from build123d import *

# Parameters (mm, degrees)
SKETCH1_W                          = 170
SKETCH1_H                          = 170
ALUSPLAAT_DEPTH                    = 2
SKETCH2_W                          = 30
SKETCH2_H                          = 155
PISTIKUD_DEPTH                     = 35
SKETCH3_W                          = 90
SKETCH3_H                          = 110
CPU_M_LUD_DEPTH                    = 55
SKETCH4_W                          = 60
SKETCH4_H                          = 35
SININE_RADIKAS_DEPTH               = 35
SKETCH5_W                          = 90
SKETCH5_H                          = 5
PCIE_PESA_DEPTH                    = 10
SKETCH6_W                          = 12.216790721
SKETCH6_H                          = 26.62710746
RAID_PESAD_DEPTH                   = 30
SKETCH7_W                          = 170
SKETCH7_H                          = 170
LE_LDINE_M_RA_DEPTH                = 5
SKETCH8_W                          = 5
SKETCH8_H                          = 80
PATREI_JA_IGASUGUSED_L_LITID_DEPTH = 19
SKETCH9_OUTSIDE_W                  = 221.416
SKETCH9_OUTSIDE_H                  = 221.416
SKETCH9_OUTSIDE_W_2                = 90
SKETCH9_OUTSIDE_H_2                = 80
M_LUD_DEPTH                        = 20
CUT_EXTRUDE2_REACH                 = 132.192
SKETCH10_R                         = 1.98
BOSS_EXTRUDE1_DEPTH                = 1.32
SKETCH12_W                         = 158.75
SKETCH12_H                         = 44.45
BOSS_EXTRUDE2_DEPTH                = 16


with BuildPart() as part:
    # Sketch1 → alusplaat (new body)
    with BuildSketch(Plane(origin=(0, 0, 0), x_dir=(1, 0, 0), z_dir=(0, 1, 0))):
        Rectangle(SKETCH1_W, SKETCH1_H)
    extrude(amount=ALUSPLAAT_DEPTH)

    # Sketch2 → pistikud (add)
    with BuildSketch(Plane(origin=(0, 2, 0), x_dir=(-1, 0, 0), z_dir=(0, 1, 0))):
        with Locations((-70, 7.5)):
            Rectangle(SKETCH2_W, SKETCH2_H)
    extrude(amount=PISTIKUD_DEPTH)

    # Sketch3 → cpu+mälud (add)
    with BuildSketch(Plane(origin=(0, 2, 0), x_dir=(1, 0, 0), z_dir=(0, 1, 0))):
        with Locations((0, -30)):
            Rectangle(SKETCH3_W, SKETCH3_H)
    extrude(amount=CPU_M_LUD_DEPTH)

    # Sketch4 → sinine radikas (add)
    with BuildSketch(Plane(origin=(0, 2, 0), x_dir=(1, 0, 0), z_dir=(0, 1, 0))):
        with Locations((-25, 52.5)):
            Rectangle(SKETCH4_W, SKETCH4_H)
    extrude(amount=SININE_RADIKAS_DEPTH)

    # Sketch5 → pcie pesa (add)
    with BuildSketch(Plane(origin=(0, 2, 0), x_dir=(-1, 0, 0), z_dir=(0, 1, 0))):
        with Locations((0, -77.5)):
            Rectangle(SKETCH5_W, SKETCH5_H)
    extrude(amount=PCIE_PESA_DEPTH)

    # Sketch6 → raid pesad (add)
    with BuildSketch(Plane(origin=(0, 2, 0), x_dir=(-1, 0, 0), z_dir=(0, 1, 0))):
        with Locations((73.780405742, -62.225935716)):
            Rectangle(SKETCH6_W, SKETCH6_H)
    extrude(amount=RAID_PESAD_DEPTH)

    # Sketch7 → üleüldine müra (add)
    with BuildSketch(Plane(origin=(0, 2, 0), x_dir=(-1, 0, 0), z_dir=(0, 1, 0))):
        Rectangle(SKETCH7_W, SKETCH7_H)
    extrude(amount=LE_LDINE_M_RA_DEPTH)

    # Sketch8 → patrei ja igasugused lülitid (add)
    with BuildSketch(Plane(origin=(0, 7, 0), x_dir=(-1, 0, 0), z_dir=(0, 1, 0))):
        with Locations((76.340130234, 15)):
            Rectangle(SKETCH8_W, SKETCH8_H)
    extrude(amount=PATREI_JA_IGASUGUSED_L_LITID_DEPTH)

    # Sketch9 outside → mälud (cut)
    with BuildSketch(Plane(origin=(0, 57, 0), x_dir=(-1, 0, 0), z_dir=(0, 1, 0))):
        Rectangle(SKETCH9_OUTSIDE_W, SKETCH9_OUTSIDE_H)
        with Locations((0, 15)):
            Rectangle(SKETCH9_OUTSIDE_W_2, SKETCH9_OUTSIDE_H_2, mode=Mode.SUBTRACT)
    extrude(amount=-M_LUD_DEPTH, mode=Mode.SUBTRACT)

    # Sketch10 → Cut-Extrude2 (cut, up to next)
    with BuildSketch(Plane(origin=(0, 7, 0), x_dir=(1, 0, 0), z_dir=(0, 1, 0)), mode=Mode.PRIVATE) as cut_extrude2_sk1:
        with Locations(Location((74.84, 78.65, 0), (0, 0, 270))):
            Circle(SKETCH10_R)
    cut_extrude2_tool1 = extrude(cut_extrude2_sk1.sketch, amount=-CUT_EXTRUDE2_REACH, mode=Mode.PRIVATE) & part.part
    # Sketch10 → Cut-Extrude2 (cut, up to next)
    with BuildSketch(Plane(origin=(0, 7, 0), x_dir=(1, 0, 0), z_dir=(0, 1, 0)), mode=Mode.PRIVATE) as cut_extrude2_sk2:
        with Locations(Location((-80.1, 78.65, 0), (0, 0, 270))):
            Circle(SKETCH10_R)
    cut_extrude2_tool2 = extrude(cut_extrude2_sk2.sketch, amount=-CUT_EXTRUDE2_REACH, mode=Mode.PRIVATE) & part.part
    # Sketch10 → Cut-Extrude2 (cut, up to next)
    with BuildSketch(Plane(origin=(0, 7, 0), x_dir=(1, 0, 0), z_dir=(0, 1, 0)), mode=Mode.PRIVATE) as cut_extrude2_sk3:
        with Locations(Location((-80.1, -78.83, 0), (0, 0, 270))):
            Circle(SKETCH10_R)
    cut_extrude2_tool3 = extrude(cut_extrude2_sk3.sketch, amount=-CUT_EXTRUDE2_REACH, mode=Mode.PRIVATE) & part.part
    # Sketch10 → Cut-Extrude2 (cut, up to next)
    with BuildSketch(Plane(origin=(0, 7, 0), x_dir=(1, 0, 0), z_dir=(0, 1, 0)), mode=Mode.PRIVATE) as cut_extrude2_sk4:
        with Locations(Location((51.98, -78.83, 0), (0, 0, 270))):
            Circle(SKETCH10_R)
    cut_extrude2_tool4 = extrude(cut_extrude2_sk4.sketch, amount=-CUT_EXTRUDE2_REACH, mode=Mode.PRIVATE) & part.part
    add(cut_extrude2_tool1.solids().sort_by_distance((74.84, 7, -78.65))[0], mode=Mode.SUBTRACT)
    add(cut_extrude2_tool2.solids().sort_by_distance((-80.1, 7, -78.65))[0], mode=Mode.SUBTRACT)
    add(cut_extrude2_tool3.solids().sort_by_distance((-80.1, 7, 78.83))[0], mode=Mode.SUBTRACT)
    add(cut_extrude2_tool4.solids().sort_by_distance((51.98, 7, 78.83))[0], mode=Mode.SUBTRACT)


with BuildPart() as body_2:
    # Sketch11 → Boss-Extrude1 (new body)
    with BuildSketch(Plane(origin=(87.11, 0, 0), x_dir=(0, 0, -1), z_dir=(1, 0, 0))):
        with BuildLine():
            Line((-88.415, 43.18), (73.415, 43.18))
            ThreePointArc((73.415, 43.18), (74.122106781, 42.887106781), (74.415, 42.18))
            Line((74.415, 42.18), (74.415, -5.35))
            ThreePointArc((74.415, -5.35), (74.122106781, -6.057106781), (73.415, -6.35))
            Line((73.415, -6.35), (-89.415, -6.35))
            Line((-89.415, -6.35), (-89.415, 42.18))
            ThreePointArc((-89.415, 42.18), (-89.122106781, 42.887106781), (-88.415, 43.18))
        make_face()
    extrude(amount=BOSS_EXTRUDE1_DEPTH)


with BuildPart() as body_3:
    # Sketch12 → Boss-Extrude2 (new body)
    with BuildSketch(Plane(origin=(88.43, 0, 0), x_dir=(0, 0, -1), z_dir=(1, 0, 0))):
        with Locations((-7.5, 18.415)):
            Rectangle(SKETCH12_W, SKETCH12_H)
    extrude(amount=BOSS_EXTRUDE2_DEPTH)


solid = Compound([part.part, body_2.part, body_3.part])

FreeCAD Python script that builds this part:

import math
import FreeCAD as App
import Part
import Sketcher


def add_polygon(sketch, points):
    """Adds a closed chain of lines whose ends are joined by coincident constraints."""
    first, n = sketch.GeometryCount, len(points)
    for a, b in zip(points, points[1:] + points[:1]):
        sketch.addGeometry(Part.LineSegment(App.Vector(*a, 0), App.Vector(*b, 0)), False)
    for i in range(n):
        sketch.addConstraint(Sketcher.Constraint("Coincident", first + i, 2, first + (i + 1) % n, 1))

doc = App.newDocument("Part")
body = doc.addObject("PartDesign::Body", "Body")

# Sketch on XZ plane
sketch1 = body.newObject("Sketcher::SketchObject", "Sketch")
sketch1.AttachmentSupport = (doc.getObject("XZ_Plane"), [""])
sketch1.MapMode = "FlatFace"
add_polygon(sketch1, [(-85, -85), (-85, 85), (85, 85), (85, -85)])  # lines 0-3
sketch1.addConstraint([
    Sketcher.Constraint("Vertical", 0),
    Sketcher.Constraint("Horizontal", 1),
    Sketcher.Constraint("Vertical", 2),
    Sketcher.Constraint("Horizontal", 3),
    Sketcher.Constraint("Symmetric", 0, 2, 2, 2, -1, 1),
    Sketcher.Constraint("Equal", 3, 0),
    Sketcher.Constraint("DistanceX", 1, 1, 1, 2, 170.0),
])
pad1 = body.newObject("PartDesign::Pad", "Pad")
pad1.Profile = sketch1
pad1.Length = 2
pad1.Reversed = True

# Sketch on XZ plane
sketch2 = body.newObject("Sketcher::SketchObject", "Sketch001")
sketch2.AttachmentSupport = (doc.getObject("XZ_Plane"), [""])
sketch2.MapMode = "FlatFace"
sketch2.AttachmentOffset = App.Placement(App.Vector(0, 0, -2), App.Rotation())
add_polygon(sketch2, [(85, 85), (85, -70), (55, -70), (55, 85)])  # lines 0-3
sketch2.addConstraint([
    Sketcher.Constraint("Vertical", 0),
    Sketcher.Constraint("Horizontal", 1),
    Sketcher.Constraint("Vertical", 2),
    Sketcher.Constraint("Horizontal", 3),
    Sketcher.Constraint("DistanceX", 1, 2, 1, 1, 30.0),
    Sketcher.Constraint("DistanceY", 0, 2, 0, 1, 155.0),
    Sketcher.Constraint("DistanceX", -1, 1, 0, 2, 85.0),
    Sketcher.Constraint("DistanceY", 0, 2, -1, 1, 70.0),
])
pad2 = body.newObject("PartDesign::Pad", "Pad001")
pad2.Profile = sketch2
pad2.Length = 35
pad2.Reversed = True

# Sketch on XZ plane
sketch3 = body.newObject("Sketcher::SketchObject", "Sketch002")
sketch3.AttachmentSupport = (doc.getObject("XZ_Plane"), [""])
sketch3.MapMode = "FlatFace"
sketch3.AttachmentOffset = App.Placement(App.Vector(0, 0, -2), App.Rotation())
add_polygon(sketch3, [(-45, -25), (-45, 85), (45, 85), (45, -25)])  # lines 0-3
sketch3.addConstraint([
    Sketcher.Constraint("Vertical", 0),
    Sketcher.Constraint("Horizontal", 1),
    Sketcher.Constraint("Vertical", 2),
    Sketcher.Constraint("Horizontal", 3),
    Sketcher.Constraint("DistanceX", 1, 1, 1, 2, 90.0),
    Sketcher.Constraint("DistanceY", 0, 1, 0, 2, 110.0),
    Sketcher.Constraint("DistanceX", 0, 2, -1, 1, 45.0),
    Sketcher.Constraint("DistanceY", -1, 1, 0, 2, 85.0),
])
pad3 = body.newObject("PartDesign::Pad", "Pad002")
pad3.Profile = sketch3
pad3.Length = 55
pad3.Reversed = True

# Sketch on XZ plane
sketch4 = body.newObject("Sketcher::SketchObject", "Sketch003")
sketch4.AttachmentSupport = (doc.getObject("XZ_Plane"), [""])
sketch4.MapMode = "FlatFace"
sketch4.AttachmentOffset = App.Placement(App.Vector(0, 0, -2), App.Rotation())
add_polygon(sketch4, [(-55, -70), (-55, -35), (5, -35), (5, -70)])  # lines 0-3
sketch4.addConstraint([
    Sketcher.Constraint("Vertical", 0),
    Sketcher.Constraint("Horizontal", 1),
    Sketcher.Constraint("Vertical", 2),
    Sketcher.Constraint("Horizontal", 3),
    Sketcher.Constraint("DistanceX", 1, 1, 1, 2, 60.0),
    Sketcher.Constraint("DistanceY", 0, 1, 0, 2, 35.0),
    Sketcher.Constraint("DistanceX", 0, 2, -1, 1, 55.0),
    Sketcher.Constraint("DistanceY", 0, 2, -1, 1, 35.0),
])
pad4 = body.newObject("PartDesign::Pad", "Pad003")
pad4.Profile = sketch4
pad4.Length = 35
pad4.Reversed = True

# Sketch on XZ plane
sketch5 = body.newObject("Sketcher::SketchObject", "Sketch004")
sketch5.AttachmentSupport = (doc.getObject("XZ_Plane"), [""])
sketch5.MapMode = "FlatFace"
sketch5.AttachmentOffset = App.Placement(App.Vector(0, 0, -2), App.Rotation())
add_polygon(sketch5, [(45, -75), (45, -80), (-45, -80), (-45, -75)])  # lines 0-3
sketch5.addConstraint([
    Sketcher.Constraint("Vertical", 0),
    Sketcher.Constraint("Horizontal", 1),
    Sketcher.Constraint("Vertical", 2),
    Sketcher.Constraint("Horizontal", 3),
    Sketcher.Constraint("DistanceX", 1, 2, 1, 1, 90.0),
    Sketcher.Constraint("DistanceY", 0, 2, 0, 1, 5.0),
    Sketcher.Constraint("DistanceX", -1, 1, 0, 2, 45.0),
    Sketcher.Constraint("DistanceY", 0, 2, -1, 1, 80.0),
])
pad5 = body.newObject("PartDesign::Pad", "Pad004")
pad5.Profile = sketch5
pad5.Length = 10
pad5.Reversed = True

# Sketch on XZ plane
sketch6 = body.newObject("Sketcher::SketchObject", "Sketch005")
sketch6.AttachmentSupport = (doc.getObject("XZ_Plane"), [""])
sketch6.MapMode = "FlatFace"
sketch6.AttachmentOffset = App.Placement(App.Vector(0, 0, -2), App.Rotation())
add_polygon(sketch6, [(-67.67201, -48.912382), (-67.67201, -75.539489), (-79.888801, -75.539489), (-79.888801, -48.912382)])  # lines 0-3
sketch6.addConstraint([
    Sketcher.Constraint("Vertical", 0),
    Sketcher.Constraint("Horizontal", 1),
    Sketcher.Constraint("Vertical", 2),
    Sketcher.Constraint("Horizontal", 3),
    Sketcher.Constraint("DistanceX", 1, 2, 1, 1, 12.216791),
    Sketcher.Constraint("DistanceX", 1, 2, -1, 1, 79.888801),
    Sketcher.Constraint("DistanceY", 0, 2, 0, 1, 26.627107),
    Sketcher.Constraint("DistanceY", 0, 2, -1, 1, 75.539489),
])
pad6 = body.newObject("PartDesign::Pad", "Pad005")
pad6.Profile = sketch6
pad6.Length = 30
pad6.Reversed = True

# Sketch on XZ plane
sketch7 = body.newObject("Sketcher::SketchObject", "Sketch006")
sketch7.AttachmentSupport = (doc.getObject("XZ_Plane"), [""])
sketch7.MapMode = "FlatFace"
sketch7.AttachmentOffset = App.Placement(App.Vector(0, 0, -2), App.Rotation())
add_polygon(sketch7, [(85, 85), (85, -85), (-85, -85), (-85, 85)])  # lines 0-3
sketch7.addConstraint([
    Sketcher.Constraint("Vertical", 0),
    Sketcher.Constraint("Horizontal", 1),
    Sketcher.Constraint("Vertical", 2),
    Sketcher.Constraint("Horizontal", 3),
    Sketcher.Constraint("Symmetric", 0, 2, 2, 2, -1, 1),
    Sketcher.Constraint("Equal", 3, 0),
    Sketcher.Constraint("DistanceX", 1, 2, 1, 1, 170.0),
])
pad7 = body.newObject("PartDesign::Pad", "Pad006")
pad7.Profile = sketch7
pad7.Length = 5
pad7.Reversed = True

# Sketch on XZ plane
sketch8 = body.newObject("Sketcher::SketchObject", "Sketch007")
sketch8.AttachmentSupport = (doc.getObject("XZ_Plane"), [""])
sketch8.MapMode = "FlatFace"
sketch8.AttachmentOffset = App.Placement(App.Vector(0, 0, -7), App.Rotation())
add_polygon(sketch8, [(-73.84013, 55), (-73.84013, -25), (-78.84013, -25), (-78.84013, 55)])  # lines 0-3
sketch8.addConstraint([
    Sketcher.Constraint("Vertical", 0),
    Sketcher.Constraint("Horizontal", 1),
    Sketcher.Constraint("Vertical", 2),
    Sketcher.Constraint("Horizontal", 3),
    Sketcher.Constraint("DistanceX", 1, 2, 1, 1, 5.0),
    Sketcher.Constraint("DistanceY", 0, 2, 0, 1, 80.0),
    Sketcher.Constraint("DistanceY", 0, 2, -1, 1, 25.0),
    Sketcher.Constraint("DistanceX", 0, 2, -1, 1, 73.84013),
])
pad8 = body.newObject("PartDesign::Pad", "Pad007")
pad8.Profile = sketch8
pad8.Length = 19
pad8.Reversed = True

# Sketch on XZ plane
sketch9 = body.newObject("Sketcher::SketchObject", "Sketch008")
sketch9.AttachmentSupport = (doc.getObject("XZ_Plane"), [""])
sketch9.MapMode = "FlatFace"
sketch9.AttachmentOffset = App.Placement(App.Vector(0, 0, -57), App.Rotation())
add_polygon(sketch9, [(110.708, 110.708), (110.708, -110.708), (-110.708, -110.708), (-110.708, 110.708)])  # lines 0-3
add_polygon(sketch9, [(-45, -25), (45, -25), (45, 55), (-45, 55)])  # lines 4-7
sketch9.addConstraint([
    Sketcher.Constraint("Vertical", 0),
    Sketcher.Constraint("Horizontal", 1),
    Sketcher.Constraint("Vertical", 2),
    Sketcher.Constraint("Horizontal", 3),
    Sketcher.Constraint("Horizontal", 4),
    Sketcher.Constraint("Vertical", 5),
    Sketcher.Constraint("Horizontal", 6),
    Sketcher.Constraint("Vertical", 7),
    Sketcher.Constraint("Symmetric", 0, 2, 2, 2, -1, 1),
    Sketcher.Constraint("Equal", 3, 0),
    Sketcher.Constraint("DistanceX", 4, 1, 4, 2, 90.0),
    Sketcher.Constraint("DistanceY", 5, 1, 5, 2, 80.0),
    Sketcher.Constraint("DistanceX", -1, 1, 4, 2, 45.0),
    Sketcher.Constraint("DistanceY", 4, 2, -1, 1, 25.0),
    Sketcher.Constraint("DistanceX", 1, 2, 1, 1, 221.416),
])
pocket1 = body.newObject("PartDesign::Pocket", "Pocket")
pocket1.Profile = sketch9
pocket1.Length = 20
pocket1.Reversed = True

# Sketch on XZ plane
sketch10 = body.newObject("Sketcher::SketchObject", "Sketch009")
sketch10.AttachmentSupport = (doc.getObject("XZ_Plane"), [""])
sketch10.MapMode = "FlatFace"
sketch10.AttachmentOffset = App.Placement(App.Vector(0, 0, -7), App.Rotation())
sketch10.addGeometry(Part.Circle(App.Vector(74.84, -78.65, 0), App.Vector(0, 0, 1), 1.98), False)
sketch10.addConstraint([
    Sketcher.Constraint("Diameter", 0, 3.96),
    Sketcher.Constraint("DistanceX", -1, 1, 0, 3, 74.84),
    Sketcher.Constraint("DistanceY", 0, 3, -1, 1, 78.65),
])
pocket2 = body.newObject("PartDesign::Pocket", "Pocket001")
pocket2.Profile = sketch10
pocket2.Type = "UpToFirst"
pocket2.Reversed = True

# Sketch on XZ plane
sketch11 = body.newObject("Sketcher::SketchObject", "Sketch010")
sketch11.AttachmentSupport = (doc.getObject("XZ_Plane"), [""])
sketch11.MapMode = "FlatFace"
sketch11.AttachmentOffset = App.Placement(App.Vector(0, 0, -7), App.Rotation())
sketch11.addGeometry(Part.Circle(App.Vector(-80.1, -78.65, 0), App.Vector(0, 0, 1), 1.98), False)
sketch11.addConstraint([
    Sketcher.Constraint("Diameter", 0, 3.96),
    Sketcher.Constraint("DistanceX", 0, 3, -1, 1, 80.1),
    Sketcher.Constraint("DistanceY", 0, 3, -1, 1, 78.65),
])
pocket3 = body.newObject("PartDesign::Pocket", "Pocket002")
pocket3.Profile = sketch11
pocket3.Type = "UpToFirst"
pocket3.Reversed = True

# Sketch on XZ plane
sketch12 = body.newObject("Sketcher::SketchObject", "Sketch011")
sketch12.AttachmentSupport = (doc.getObject("XZ_Plane"), [""])
sketch12.MapMode = "FlatFace"
sketch12.AttachmentOffset = App.Placement(App.Vector(0, 0, -7), App.Rotation())
sketch12.addGeometry(Part.Circle(App.Vector(-80.1, 78.83, 0), App.Vector(0, 0, 1), 1.98), False)
sketch12.addConstraint([
    Sketcher.Constraint("Diameter", 0, 3.96),
    Sketcher.Constraint("DistanceX", 0, 3, -1, 1, 80.1),
    Sketcher.Constraint("DistanceY", -1, 1, 0, 3, 78.83),
])
pocket4 = body.newObject("PartDesign::Pocket", "Pocket003")
pocket4.Profile = sketch12
pocket4.Type = "UpToFirst"
pocket4.Reversed = True

# Sketch on XZ plane
sketch13 = body.newObject("Sketcher::SketchObject", "Sketch012")
sketch13.AttachmentSupport = (doc.getObject("XZ_Plane"), [""])
sketch13.MapMode = "FlatFace"
sketch13.AttachmentOffset = App.Placement(App.Vector(0, 0, -7), App.Rotation())
sketch13.addGeometry(Part.Circle(App.Vector(51.98, 78.83, 0), App.Vector(0, 0, 1), 1.98), False)
sketch13.addConstraint([
    Sketcher.Constraint("Diameter", 0, 3.96),
    Sketcher.Constraint("DistanceX", -1, 1, 0, 3, 51.98),
    Sketcher.Constraint("DistanceY", -1, 1, 0, 3, 78.83),
])
pocket5 = body.newObject("PartDesign::Pocket", "Pocket004")
pocket5.Profile = sketch13
pocket5.Type = "UpToFirst"
pocket5.Reversed = True
body2 = doc.addObject("PartDesign::Body", "Body001")

# Sketch on YZ plane
sketch14 = body2.newObject("Sketcher::SketchObject", "Sketch013")
sketch14.AttachmentSupport = (doc.getObject("YZ_Plane001"), [""])
sketch14.MapMode = "FlatFace"
sketch14.AttachmentOffset = App.Placement(App.Vector(0, 0, 87.11), App.Rotation())
sketch14.addGeometry([
    Part.LineSegment(App.Vector(43.18, -73.415, 0), App.Vector(43.18, 88.415, 0)),  # 0
    Part.ArcOfCircle(Part.Circle(App.Vector(42.18, 88.415, 0), App.Vector(0, 0, 1), 1), math.radians(0), math.radians(90)),  # 1
    Part.LineSegment(App.Vector(42.18, 89.415, 0), App.Vector(-6.35, 89.415, 0)),  # 2
    Part.LineSegment(App.Vector(-6.35, 89.415, 0), App.Vector(-6.35, -73.415, 0)),  # 3
    Part.ArcOfCircle(Part.Circle(App.Vector(-5.35, -73.415, 0), App.Vector(0, 0, 1), 1), math.radians(-180), math.radians(-90)),  # 4
    Part.LineSegment(App.Vector(-5.35, -74.415, 0), App.Vector(42.18, -74.415, 0)),  # 5
    Part.ArcOfCircle(Part.Circle(App.Vector(42.18, -73.415, 0), App.Vector(0, 0, 1), 1), math.radians(-90), math.radians(0)),  # 6
], False)
sketch14.addConstraint([
    Sketcher.Constraint("Tangent", 0, 2, 1, 1),
    Sketcher.Constraint("Tangent", 1, 2, 2, 1),
    Sketcher.Constraint("Coincident", 2, 2, 3, 1),
    Sketcher.Constraint("Tangent", 3, 2, 4, 1),
    Sketcher.Constraint("Tangent", 4, 2, 5, 1),
    Sketcher.Constraint("Tangent", 5, 2, 6, 1),
    Sketcher.Constraint("Tangent", 6, 2, 0, 1),
    Sketcher.Constraint("Vertical", 0),
    Sketcher.Constraint("Horizontal", 2),
    Sketcher.Constraint("Vertical", 3),
    Sketcher.Constraint("Horizontal", 5),
    Sketcher.Constraint("Equal", 1, 4),
    Sketcher.Constraint("Equal", 4, 6),
    Sketcher.Constraint("Radius", 1, 1.0),
    Sketcher.Constraint("DistanceX", 2, 2, 2, 1, 48.53),
    Sketcher.Constraint("DistanceY", 0, 1, 0, 2, 161.83),
    Sketcher.Constraint("DistanceX", -1, 1, 1, 3, 42.18),
    Sketcher.Constraint("DistanceY", -1, 1, 1, 3, 88.415),
])
pad9 = body2.newObject("PartDesign::Pad", "Pad008")
pad9.Profile = sketch14
pad9.Length = 1.32
body3 = doc.addObject("PartDesign::Body", "Body002")

# Sketch on YZ plane
sketch15 = body3.newObject("Sketcher::SketchObject", "Sketch014")
sketch15.AttachmentSupport = (doc.getObject("YZ_Plane002"), [""])
sketch15.MapMode = "FlatFace"
sketch15.AttachmentOffset = App.Placement(App.Vector(0, 0, 88.43), App.Rotation())
add_polygon(sketch15, [(40.64, 86.875), (-3.81, 86.875), (-3.81, -71.875), (40.64, -71.875)])  # lines 0-3
sketch15.addConstraint([
    Sketcher.Constraint("Horizontal", 0),
    Sketcher.Constraint("Vertical", 1),
    Sketcher.Constraint("Horizontal", 2),
    Sketcher.Constraint("Vertical", 3),
    Sketcher.Constraint("DistanceX", 0, 2, 0, 1, 44.45),
    Sketcher.Constraint("DistanceY", 1, 2, 1, 1, 158.75),
    Sketcher.Constraint("DistanceX", 0, 2, -1, 1, 3.81),
    Sketcher.Constraint("DistanceY", -1, 1, 0, 2, 86.875),
])
pad10 = body3.newObject("PartDesign::Pad", "Pad009")
pad10.Profile = sketch15
pad10.Length = 16

doc.recompute()
